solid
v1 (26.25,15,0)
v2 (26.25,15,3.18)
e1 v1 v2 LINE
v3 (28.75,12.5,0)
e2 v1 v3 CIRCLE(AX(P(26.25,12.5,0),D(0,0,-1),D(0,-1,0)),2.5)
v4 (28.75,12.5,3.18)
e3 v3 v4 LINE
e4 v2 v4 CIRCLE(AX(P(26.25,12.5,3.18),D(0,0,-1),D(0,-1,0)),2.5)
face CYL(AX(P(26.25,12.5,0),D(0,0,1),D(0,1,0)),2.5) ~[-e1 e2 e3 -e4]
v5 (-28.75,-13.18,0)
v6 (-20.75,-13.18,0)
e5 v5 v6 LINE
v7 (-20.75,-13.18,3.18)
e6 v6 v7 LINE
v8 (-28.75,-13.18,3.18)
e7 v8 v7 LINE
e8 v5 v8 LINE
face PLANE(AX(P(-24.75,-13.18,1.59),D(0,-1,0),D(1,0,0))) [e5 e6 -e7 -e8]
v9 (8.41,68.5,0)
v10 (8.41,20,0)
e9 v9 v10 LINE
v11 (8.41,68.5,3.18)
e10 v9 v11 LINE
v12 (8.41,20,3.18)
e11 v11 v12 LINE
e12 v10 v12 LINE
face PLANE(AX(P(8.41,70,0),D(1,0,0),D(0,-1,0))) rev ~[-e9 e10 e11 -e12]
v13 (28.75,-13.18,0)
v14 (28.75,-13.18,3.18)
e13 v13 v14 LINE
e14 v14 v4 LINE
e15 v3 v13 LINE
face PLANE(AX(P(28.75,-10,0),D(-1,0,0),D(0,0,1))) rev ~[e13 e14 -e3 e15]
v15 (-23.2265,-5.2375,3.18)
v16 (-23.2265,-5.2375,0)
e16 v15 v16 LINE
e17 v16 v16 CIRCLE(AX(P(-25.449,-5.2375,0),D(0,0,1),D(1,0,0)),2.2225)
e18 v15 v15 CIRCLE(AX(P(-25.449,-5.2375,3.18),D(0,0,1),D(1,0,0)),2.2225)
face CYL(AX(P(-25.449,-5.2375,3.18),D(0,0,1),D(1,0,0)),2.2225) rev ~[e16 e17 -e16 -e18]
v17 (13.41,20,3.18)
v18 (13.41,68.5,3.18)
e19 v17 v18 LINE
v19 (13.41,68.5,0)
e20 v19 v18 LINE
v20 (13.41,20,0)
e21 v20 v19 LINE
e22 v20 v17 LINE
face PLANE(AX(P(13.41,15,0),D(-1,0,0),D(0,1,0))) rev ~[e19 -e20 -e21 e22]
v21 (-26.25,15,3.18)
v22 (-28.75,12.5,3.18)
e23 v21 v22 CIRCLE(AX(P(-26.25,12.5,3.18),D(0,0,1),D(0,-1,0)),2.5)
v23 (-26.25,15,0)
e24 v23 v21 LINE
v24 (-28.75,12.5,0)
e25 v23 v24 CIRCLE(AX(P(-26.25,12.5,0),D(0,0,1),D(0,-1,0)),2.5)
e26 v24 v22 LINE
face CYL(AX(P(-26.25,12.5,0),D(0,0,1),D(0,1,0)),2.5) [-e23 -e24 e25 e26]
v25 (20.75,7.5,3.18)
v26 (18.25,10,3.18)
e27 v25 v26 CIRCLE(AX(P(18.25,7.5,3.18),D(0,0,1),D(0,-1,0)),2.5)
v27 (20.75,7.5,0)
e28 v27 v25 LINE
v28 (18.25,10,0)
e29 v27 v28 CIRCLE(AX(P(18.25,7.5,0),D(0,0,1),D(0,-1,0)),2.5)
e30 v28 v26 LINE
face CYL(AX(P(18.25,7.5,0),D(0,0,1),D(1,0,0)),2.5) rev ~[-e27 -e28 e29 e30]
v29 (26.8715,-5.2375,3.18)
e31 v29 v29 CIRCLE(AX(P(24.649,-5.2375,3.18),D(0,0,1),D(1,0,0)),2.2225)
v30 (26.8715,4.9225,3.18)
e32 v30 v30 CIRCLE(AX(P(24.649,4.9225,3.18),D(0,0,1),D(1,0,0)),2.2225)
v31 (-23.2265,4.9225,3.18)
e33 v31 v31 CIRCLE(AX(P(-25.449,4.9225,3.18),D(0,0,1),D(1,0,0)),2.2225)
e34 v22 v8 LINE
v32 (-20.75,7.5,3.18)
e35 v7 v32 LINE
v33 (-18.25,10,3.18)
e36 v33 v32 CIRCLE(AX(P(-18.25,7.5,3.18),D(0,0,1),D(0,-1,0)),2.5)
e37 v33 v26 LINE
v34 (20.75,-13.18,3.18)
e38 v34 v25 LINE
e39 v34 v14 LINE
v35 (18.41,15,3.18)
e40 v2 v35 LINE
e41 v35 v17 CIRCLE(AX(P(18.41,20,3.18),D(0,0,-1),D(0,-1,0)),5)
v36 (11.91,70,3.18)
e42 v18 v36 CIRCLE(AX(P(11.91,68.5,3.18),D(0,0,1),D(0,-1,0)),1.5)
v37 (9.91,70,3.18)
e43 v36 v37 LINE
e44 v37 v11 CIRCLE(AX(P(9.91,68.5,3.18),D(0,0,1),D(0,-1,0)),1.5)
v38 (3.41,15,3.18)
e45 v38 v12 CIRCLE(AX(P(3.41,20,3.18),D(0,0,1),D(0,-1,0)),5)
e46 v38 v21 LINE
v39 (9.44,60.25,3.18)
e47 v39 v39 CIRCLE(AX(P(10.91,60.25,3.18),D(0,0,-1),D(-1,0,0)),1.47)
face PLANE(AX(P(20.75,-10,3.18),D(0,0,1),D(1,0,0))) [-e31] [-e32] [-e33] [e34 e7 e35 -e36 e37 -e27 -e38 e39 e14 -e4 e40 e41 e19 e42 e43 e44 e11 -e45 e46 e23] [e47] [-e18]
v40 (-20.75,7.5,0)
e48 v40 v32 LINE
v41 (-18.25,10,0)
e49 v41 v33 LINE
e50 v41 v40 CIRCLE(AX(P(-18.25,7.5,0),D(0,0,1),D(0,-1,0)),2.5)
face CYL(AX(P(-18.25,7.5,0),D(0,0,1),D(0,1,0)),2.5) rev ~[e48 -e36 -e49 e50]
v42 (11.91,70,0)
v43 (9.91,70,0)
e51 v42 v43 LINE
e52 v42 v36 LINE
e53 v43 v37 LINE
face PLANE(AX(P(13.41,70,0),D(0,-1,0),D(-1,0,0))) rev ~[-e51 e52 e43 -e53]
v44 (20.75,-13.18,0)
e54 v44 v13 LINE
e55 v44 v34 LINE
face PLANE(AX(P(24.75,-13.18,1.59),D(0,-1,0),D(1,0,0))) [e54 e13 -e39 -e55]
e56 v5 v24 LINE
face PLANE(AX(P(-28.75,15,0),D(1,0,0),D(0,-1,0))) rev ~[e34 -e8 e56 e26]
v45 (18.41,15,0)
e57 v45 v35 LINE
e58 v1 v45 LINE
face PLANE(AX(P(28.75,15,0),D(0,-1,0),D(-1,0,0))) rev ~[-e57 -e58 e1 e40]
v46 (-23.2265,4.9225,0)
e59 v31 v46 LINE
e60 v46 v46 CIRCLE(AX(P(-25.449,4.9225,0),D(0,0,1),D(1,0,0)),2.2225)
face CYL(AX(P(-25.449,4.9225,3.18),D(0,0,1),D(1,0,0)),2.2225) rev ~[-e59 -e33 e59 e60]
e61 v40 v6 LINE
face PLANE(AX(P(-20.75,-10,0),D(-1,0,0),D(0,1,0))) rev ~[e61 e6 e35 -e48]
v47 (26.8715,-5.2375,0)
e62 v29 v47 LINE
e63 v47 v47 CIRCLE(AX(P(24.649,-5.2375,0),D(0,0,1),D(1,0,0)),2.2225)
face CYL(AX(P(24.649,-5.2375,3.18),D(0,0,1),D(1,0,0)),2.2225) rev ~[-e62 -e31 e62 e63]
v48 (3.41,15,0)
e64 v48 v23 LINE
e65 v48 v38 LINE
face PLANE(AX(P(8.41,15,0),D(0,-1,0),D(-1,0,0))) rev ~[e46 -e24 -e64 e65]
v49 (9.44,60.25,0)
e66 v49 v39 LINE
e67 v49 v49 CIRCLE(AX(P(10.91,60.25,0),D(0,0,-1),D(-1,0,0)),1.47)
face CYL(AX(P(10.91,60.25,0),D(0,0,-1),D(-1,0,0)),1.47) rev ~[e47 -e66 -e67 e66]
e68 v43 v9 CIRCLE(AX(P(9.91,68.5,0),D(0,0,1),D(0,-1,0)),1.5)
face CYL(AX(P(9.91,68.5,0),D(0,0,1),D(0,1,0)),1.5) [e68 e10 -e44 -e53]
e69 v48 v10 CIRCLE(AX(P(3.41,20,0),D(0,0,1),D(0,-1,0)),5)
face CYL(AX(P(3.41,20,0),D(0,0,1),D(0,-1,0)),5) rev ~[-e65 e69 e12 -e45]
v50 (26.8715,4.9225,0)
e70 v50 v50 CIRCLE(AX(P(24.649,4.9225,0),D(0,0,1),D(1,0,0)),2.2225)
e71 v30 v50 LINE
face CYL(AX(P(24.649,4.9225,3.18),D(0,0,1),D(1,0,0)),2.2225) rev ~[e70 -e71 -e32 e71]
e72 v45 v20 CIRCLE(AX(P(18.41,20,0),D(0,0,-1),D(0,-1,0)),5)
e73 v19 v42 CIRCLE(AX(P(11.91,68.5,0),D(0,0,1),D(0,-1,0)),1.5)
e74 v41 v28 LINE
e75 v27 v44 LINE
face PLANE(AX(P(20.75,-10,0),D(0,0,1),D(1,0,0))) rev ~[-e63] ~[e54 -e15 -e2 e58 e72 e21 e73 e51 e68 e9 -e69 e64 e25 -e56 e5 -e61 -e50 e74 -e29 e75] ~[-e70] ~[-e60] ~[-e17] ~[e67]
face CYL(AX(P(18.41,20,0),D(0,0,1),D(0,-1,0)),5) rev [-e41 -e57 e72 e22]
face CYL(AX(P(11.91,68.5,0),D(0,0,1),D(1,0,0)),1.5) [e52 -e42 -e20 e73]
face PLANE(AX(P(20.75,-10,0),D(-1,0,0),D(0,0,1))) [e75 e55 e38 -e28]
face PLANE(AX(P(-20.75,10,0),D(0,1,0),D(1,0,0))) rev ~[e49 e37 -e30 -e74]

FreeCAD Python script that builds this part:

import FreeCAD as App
import Part
import Sketcher
Q = App.Units.Quantity


def edges_at(feature, points):
    """Names of the edges that pass closest to the given points."""
    edges = feature.Shape.Edges
    near = lambda p: min(range(len(edges)), key=lambda i: edges[i].distToShape(Part.Vertex(*p))[0])
    return sorted({f"Edge{near(p) + 1}" for p in points})


def add_polygon(sketch, points):
    """Adds a closed chain of lines whose ends are joined by coincident constraints."""
    first, n = sketch.GeometryCount, len(points)
    for a, b in zip(points, points[1:] + points[:1]):
        sketch.addGeometry(Part.LineSegment(App.Vector(*a, 0), App.Vector(*b, 0)), False)
    for i in range(n):
        sketch.addConstraint(Sketcher.Constraint("Coincident", first + i, 2, first + (i + 1) % n, 1))

doc = App.newDocument("Part")
body = doc.addObject("PartDesign::Body", "Body")

# Sketch on XY plane
sketch1 = body.newObject("Sketcher::SketchObject", "Sketch")
sketch1.AttachmentSupport = (doc.getObject("XY_Plane"), [""])
sketch1.MapMode = "FlatFace"
add_polygon(sketch1, [(29, 15), (13, 15), (13, 70), (8, 70), (8, 15), (-29, 15), (-29, -10), (-21, -10), (-21, 10), (21, 10), (21, -10), (29, -10)])  # lines 0-11
sketch1.addConstraint(Sketcher.Constraint("Horizontal", 0))
sketch1.addConstraint(Sketcher.Constraint("Vertical", 1))
sketch1.addConstraint(Sketcher.Constraint("Horizontal", 2))
sketch1.addConstraint(Sketcher.Constraint("Vertical", 3))
sketch1.addConstraint(Sketcher.Constraint("Horizontal", 4))
sketch1.addConstraint(Sketcher.Constraint("Vertical", 5))
sketch1.addConstraint(Sketcher.Constraint("Horizontal", 6))
sketch1.addConstraint(Sketcher.Constraint("Vertical", 7))
sketch1.addConstraint(Sketcher.Constraint("Horizontal", 8))
sketch1.addConstraint(Sketcher.Constraint("Vertical", 9))
sketch1.addConstraint(Sketcher.Constraint("Horizontal", 10))
sketch1.addConstraint(Sketcher.Constraint("Vertical", 11))
sketch1.addConstraint(Sketcher.Constraint("Symmetric", 6, 2, 8, 2, -1, 1))
sketch1.addConstraint(Sketcher.Constraint("Symmetric", 5, 2, 10, 2, -2))
sketch1.addConstraint(Sketcher.Constraint("Horizontal", 0, 2, 3, 2))
sketch1.addConstraint(Sketcher.Constraint("DistanceX", 2, 2, 2, 1, Q("5 mm")))
sketch1.addConstraint(Sketcher.Constraint("DistanceX", 6, 1, 6, 2, Q("8 mm")))
sketch1.addConstraint(Sketcher.Constraint("DistanceY", 1, 1, 1, 2, Q("55 mm")))
sketch1.addConstraint(Sketcher.Constraint("DistanceY", 5, 2, 5, 1, Q("25 mm")))
sketch1.addConstraint(Sketcher.Constraint("DistanceY", 7, 1, 7, 2, Q("20 mm")))
sketch1.addConstraint(Sketcher.Constraint("DistanceX", 8, 1, 8, 2, Q("41.5 mm")))
sketch1.addConstraint(Sketcher.Constraint("DistanceX", 0, 2, 0, 1, Q("15.34 mm")))
pad1 = body.newObject("PartDesign::Pad", "Pad")
pad1.Profile = sketch1
pad1.Length = 3.18

# Sketch on XY plane
sketch2 = body.newObject("Sketcher::SketchObject", "Sketch001")
sketch2.AttachmentSupport = (doc.getObject("XY_Plane"), [""])
sketch2.MapMode = "FlatFace"
sketch2.addGeometry(Part.Circle(App.Vector(10.9, 60.2, 0), App.Vector(0, 0, 1), 1.5), False)
sketch2.addConstraint(Sketcher.Constraint("Diameter", 0, Q("2.94 mm")))
sketch2.addConstraint(Sketcher.Constraint("DistanceX", -1, 1, 0, 3, Q("10.91 mm")))
sketch2.addConstraint(Sketcher.Constraint("DistanceY", -1, 1, 0, 3, Q("60.25 mm")))
pocket1 = body.newObject("PartDesign::Pocket", "Pocket")
pocket1.Profile = sketch2
pocket1.Type = "ThroughAll"
pocket1.Reversed = True

# Sketch on XZ plane
sketch3 = body.newObject("Sketcher::SketchObject", "Sketch002")
sketch3.AttachmentSupport = (doc.getObject("XZ_Plane"), [""])
sketch3.MapMode = "FlatFace"
sketch3.AttachmentOffset = App.Placement(App.Vector(0, 0, 10), App.Rotation())
add_polygon(sketch3, [(20.8, 3.2), (20.8, 0), (28.8, 0), (28.8, 3.2)])  # lines 0-3
add_polygon(sketch3, [(-28.8, 3.2), (-28.8, 0), (-20.8, 0), (-20.8, 3.2)])  # lines 4-7
sketch3.addConstraint(Sketcher.Constraint("Vertical", 0))
sketch3.addConstraint(Sketcher.Constraint("Horizontal", 1))
sketch3.addConstraint(Sketcher.Constraint("Vertical", 2))
sketch3.addConstraint(Sketcher.Constraint("Horizontal", 3))
sketch3.addConstraint(Sketcher.Constraint("Vertical", 4))
sketch3.addConstraint(Sketcher.Constraint("Horizontal", 5))
sketch3.addConstraint(Sketcher.Constraint("Vertical", 6))
sketch3.addConstraint(Sketcher.Constraint("Horizontal", 7))
sketch3.addConstraint(Sketcher.Constraint("Symmetric", 1, 2, 4, 2, -1, 1))
sketch3.addConstraint(Sketcher.Constraint("Symmetric", 0, 2, 5, 2, -2))
sketch3.addConstraint(Sketcher.Constraint("Horizontal", 3, 2, 6, 2))
sketch3.addConstraint(Sketcher.Constraint("DistanceX", 1, 1, 1, 2, Q("8 mm")))
sketch3.addConstraint(Sketcher.Constraint("DistanceY", 0, 2, 0, 1, Q("3.18 mm")))
sketch3.addConstraint(Sketcher.Constraint("DistanceX", 4, 2, 0, 2, Q("49.5 mm")))
pad2 = body.newObject("PartDesign::Pad", "Pad001")
pad2.Profile = sketch3
pad2.Length = 3.18

# Sketch on XY plane
sketch4 = body.newObject("Sketcher::SketchObject", "Sketch003")
sketch4.AttachmentSupport = (doc.getObject("XY_Plane"), [""])
sketch4.MapMode = "FlatFace"
sketch4.AttachmentOffset = App.Placement(App.Vector(0, 0, 3.18), App.Rotation())
sketch4.addGeometry(Part.Circle(App.Vector(-25.4, 4.9, 0), App.Vector(0, 0, 1), 2.2), False)
sketch4.addGeometry(Part.Circle(App.Vector(-25.4, -5.2, 0), App.Vector(0, 0, 1), 2.2), False)
sketch4.addGeometry(Part.Circle(App.Vector(24.6, 4.9, 0), App.Vector(0, 0, 1), 2.2), False)
sketch4.addGeometry(Part.Circle(App.Vector(24.6, -5.2, 0), App.Vector(0, 0, 1), 2.2), False)
sketch4.addConstraint(Sketcher.Constraint("Equal", 0, 1))
sketch4.addConstraint(Sketcher.Constraint("Equal", 1, 2))
sketch4.addConstraint(Sketcher.Constraint("Equal", 2, 3))
sketch4.addConstraint(Sketcher.Constraint("Horizontal", 0, 3, 2, 3))
sketch4.addConstraint(Sketcher.Constraint("Horizontal", 1, 3, 3, 3))
sketch4.addConstraint(Sketcher.Constraint("Vertical", 0, 3, 1, 3))
sketch4.addConstraint(Sketcher.Constraint("Vertical", 2, 3, 3, 3))
sketch4.addConstraint(Sketcher.Constraint("Diameter", 0, Q("4.445 mm")))
sketch4.addConstraint(Sketcher.Constraint("DistanceY", 1, 3, 0, 3, Q("10.16 mm")))
sketch4.addConstraint(Sketcher.Constraint("DistanceX", 0, 3, -1, 1, Q("25.449 mm")))
sketch4.addConstraint(Sketcher.Constraint("DistanceX", -1, 1, 2, 3, Q("24.649 mm")))
sketch4.addConstraint(Sketcher.Constraint("DistanceY", -1, 1, 0, 3, Q("4.9225 mm")))
pocket2 = body.newObject("PartDesign::Pocket", "Pocket001")
pocket2.Profile = sketch4
pocket2.Type = "ThroughAll"
doc.recompute()

fillet = body.newObject("PartDesign::Fillet", "Fillet")
fillet.Base = (pocket2, edges_at(pocket2, [(8.41, 15, 1.59), (13.41, 15, 1.59)]))
fillet.Radius = 5
doc.recompute()

fillet2 = body.newObject("PartDesign::Fillet", "Fillet001")
fillet2.Base = (fillet, edges_at(fillet, [(8.41, 70, 1.59), (13.41, 70, 1.59)]))
fillet2.Radius = 1.5
doc.recompute()

fillet3 = body.newObject("PartDesign::Fillet", "Fillet002")
fillet3.Base = (fillet2, edges_at(fillet2, [
    (28.75, 15, 1.59),
    (20.75, 10, 1.59),
    (-20.75, 10, 1.59),
    (-28.75, 15, 1.59),
]))
fillet3.Radius = 2.5

doc.recompute()
